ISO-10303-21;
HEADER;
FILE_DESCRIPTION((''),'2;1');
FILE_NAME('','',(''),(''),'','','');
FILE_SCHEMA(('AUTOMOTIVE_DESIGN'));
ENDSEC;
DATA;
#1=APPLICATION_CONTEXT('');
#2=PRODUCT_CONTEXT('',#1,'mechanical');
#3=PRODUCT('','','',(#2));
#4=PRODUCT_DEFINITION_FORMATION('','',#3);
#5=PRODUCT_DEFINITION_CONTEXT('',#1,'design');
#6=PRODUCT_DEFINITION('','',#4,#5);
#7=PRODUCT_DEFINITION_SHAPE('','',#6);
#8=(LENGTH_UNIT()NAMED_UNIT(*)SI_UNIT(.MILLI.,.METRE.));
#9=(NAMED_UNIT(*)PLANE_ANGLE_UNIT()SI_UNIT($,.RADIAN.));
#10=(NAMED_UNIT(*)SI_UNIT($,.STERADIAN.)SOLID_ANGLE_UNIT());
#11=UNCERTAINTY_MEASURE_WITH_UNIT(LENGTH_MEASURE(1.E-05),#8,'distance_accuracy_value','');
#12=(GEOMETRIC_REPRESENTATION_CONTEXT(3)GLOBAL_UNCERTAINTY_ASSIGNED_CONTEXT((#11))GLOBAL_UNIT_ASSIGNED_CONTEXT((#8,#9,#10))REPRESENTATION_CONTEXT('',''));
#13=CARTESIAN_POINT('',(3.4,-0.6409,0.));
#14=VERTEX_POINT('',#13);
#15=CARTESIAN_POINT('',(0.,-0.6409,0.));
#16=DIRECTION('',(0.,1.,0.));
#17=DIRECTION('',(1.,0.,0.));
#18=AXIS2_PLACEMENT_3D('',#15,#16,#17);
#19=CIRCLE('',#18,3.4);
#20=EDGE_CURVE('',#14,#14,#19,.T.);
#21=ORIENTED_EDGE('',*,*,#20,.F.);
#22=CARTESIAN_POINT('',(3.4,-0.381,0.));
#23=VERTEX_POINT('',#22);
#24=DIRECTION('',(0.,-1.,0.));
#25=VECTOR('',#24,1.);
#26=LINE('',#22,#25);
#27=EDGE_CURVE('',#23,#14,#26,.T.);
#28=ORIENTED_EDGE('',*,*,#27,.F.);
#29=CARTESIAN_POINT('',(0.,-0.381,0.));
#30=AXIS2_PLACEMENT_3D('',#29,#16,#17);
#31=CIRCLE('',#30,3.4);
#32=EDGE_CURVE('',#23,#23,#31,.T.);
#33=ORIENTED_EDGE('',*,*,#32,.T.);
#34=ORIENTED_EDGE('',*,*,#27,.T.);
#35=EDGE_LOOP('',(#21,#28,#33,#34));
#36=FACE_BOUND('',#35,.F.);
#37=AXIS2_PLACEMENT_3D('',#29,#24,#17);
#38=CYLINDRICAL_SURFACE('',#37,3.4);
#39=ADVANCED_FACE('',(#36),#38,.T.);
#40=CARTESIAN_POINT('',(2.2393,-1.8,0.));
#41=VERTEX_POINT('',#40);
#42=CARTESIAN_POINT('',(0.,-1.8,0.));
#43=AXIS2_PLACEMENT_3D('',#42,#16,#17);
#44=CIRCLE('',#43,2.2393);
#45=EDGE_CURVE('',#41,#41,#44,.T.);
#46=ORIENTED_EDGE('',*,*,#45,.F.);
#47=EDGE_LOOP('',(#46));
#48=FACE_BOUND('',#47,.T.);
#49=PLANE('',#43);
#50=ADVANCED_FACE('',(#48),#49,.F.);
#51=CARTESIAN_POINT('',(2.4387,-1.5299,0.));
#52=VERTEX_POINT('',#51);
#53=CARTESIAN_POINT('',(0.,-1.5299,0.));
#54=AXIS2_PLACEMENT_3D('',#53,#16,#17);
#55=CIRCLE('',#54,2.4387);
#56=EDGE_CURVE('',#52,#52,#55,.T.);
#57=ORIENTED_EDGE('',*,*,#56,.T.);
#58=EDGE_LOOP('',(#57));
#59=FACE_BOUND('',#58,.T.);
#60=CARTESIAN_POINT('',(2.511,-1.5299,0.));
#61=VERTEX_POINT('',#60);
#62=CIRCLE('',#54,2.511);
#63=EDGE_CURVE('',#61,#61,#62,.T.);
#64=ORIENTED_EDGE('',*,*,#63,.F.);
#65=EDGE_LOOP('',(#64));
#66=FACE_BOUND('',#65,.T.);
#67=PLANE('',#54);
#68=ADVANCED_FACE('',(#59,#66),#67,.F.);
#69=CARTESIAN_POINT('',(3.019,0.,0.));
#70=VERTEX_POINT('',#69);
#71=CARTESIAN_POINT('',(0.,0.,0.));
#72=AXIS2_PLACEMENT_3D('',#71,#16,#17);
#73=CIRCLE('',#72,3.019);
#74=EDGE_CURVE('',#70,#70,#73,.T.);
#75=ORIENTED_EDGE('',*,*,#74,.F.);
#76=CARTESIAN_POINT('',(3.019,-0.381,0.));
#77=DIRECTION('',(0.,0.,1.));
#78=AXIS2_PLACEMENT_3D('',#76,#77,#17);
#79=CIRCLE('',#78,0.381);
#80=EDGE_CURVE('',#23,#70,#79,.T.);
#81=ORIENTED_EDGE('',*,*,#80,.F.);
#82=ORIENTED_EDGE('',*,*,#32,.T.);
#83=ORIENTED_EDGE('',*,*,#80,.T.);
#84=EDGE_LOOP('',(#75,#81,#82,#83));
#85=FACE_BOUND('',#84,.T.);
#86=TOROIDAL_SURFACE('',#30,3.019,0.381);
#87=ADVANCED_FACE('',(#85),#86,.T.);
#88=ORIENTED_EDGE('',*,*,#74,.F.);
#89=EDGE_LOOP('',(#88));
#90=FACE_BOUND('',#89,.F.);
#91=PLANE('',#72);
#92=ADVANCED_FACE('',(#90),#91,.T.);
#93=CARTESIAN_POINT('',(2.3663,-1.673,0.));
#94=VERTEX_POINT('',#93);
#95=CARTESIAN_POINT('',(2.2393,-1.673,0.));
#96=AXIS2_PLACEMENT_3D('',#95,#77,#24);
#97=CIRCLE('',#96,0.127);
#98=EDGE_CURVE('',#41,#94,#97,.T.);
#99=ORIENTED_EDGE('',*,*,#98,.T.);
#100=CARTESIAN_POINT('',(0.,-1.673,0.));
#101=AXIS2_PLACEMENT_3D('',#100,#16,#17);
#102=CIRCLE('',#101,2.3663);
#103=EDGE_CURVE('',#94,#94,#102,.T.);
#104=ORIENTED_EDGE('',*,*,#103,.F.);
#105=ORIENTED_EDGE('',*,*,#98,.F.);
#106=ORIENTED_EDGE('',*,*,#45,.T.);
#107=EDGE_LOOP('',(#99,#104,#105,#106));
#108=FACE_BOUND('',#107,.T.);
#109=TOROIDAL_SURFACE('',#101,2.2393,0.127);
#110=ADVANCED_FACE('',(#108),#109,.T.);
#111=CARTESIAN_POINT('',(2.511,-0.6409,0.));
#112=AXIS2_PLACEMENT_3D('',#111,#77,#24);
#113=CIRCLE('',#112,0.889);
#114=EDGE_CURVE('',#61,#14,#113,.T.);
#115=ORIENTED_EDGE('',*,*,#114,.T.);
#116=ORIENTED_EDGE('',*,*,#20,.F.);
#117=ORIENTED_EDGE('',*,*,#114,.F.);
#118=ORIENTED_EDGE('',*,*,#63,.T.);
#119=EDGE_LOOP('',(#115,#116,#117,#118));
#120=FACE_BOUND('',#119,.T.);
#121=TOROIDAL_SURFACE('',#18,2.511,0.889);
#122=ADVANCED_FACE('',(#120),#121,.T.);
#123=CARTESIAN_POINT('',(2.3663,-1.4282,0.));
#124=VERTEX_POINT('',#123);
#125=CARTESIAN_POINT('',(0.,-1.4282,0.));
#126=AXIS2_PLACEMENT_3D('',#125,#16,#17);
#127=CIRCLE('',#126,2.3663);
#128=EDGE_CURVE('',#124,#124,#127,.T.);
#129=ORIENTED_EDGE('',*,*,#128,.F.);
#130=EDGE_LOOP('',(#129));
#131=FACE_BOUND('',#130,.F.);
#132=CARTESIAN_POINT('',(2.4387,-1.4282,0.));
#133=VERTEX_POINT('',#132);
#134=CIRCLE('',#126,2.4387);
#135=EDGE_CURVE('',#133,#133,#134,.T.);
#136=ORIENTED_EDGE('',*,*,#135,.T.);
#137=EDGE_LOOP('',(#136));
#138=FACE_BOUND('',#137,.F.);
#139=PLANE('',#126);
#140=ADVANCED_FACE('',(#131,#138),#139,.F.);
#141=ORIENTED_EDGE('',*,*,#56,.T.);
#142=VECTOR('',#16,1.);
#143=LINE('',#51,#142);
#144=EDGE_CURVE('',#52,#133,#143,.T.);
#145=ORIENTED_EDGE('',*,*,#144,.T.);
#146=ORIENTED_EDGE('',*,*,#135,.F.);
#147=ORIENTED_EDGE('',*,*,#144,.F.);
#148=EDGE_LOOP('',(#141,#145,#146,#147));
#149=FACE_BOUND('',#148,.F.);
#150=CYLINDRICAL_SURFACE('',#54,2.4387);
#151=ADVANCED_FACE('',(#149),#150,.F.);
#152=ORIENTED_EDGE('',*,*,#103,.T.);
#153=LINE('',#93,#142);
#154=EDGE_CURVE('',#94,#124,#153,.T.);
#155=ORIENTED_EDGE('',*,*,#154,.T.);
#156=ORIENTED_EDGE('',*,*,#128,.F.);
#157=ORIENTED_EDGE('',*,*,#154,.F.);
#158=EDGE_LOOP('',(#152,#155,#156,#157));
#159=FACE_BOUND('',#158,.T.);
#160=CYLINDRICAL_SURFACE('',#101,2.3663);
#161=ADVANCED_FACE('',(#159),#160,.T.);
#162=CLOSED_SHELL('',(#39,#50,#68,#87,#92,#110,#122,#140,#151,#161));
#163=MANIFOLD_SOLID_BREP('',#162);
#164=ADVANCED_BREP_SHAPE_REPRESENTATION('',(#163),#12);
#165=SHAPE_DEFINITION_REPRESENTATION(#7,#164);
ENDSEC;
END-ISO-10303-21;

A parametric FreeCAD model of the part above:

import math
import FreeCAD as App
import Part
import Sketcher

V = App.Vector
Q = App.Units.Quantity

doc = App.newDocument("Part")
body = doc.addObject("PartDesign::Body", "Body")

sketch1 = body.newObject("Sketcher::SketchObject", "Sketch")
sketch1.AttachmentSupport = (doc.getObject("XY_Plane"), [""])
sketch1.MapMode = "FlatFace"
sketch1.addGeometry([
    Part.LineSegment(V(3.019, 0, 0), V(0, 0, 0)),
    Part.LineSegment(V(0, 0, 0), V(0, -1.8, 0)),
    Part.LineSegment(V(0, -1.8, 0), V(2.2393, -1.8, 0)),
    Part.ArcOfCircle(Part.Circle(V(2.2393, -1.673, 0), V(0, 0, 1), 0.127), math.radians(-90), math.radians(0)),
    Part.LineSegment(V(2.3663, -1.673, 0), V(2.3663, -1.4282, 0)),
    Part.LineSegment(V(2.3663, -1.4282, 0), V(2.4387, -1.4282, 0)),
    Part.LineSegment(V(2.4387, -1.4282, 0), V(2.4387, -1.5299, 0)),
    Part.LineSegment(V(2.4387, -1.5299, 0), V(2.511, -1.5299, 0)),
    Part.ArcOfCircle(Part.Circle(V(2.511, -0.6409, 0), V(0, 0, 1), 0.889), math.radians(-90), math.radians(0)),
    Part.LineSegment(V(3.4, -0.6409, 0), V(3.4, -0.381, 0)),
    Part.ArcOfCircle(Part.Circle(V(3.019, -0.381, 0), V(0, 0, 1), 0.381), math.radians(0), math.radians(90)),
], False)
sketch1.addConstraint([
    Sketcher.Constraint("Coincident", 0, 2, 1, 1),
    Sketcher.Constraint("Coincident", 1, 2, 2, 1),
    Sketcher.Constraint("Tangent", 2, 2, 3, 1),
    Sketcher.Constraint("Tangent", 3, 2, 4, 1),
    Sketcher.Constraint("Coincident", 4, 2, 5, 1),
    Sketcher.Constraint("Coincident", 5, 2, 6, 1),
    Sketcher.Constraint("Coincident", 6, 2, 7, 1),
    Sketcher.Constraint("Tangent", 7, 2, 8, 1),
    Sketcher.Constraint("Tangent", 8, 2, 9, 1),
    Sketcher.Constraint("Tangent", 9, 2, 10, 1),
    Sketcher.Constraint("Tangent", 10, 2, 0, 1),
    Sketcher.Constraint("Horizontal", 0),
    Sketcher.Constraint("Vertical", 1),
    Sketcher.Constraint("Horizontal", 2),
    Sketcher.Constraint("Vertical", 4),
    Sketcher.Constraint("Horizontal", 5),
    Sketcher.Constraint("Vertical", 6),
    Sketcher.Constraint("Horizontal", 7),
    Sketcher.Constraint("Vertical", 9),
    Sketcher.Constraint("Coincident", 0, 2, -1, 1),
    Sketcher.Constraint("Equal", 5, 7),
    Sketcher.Constraint("Radius", 3, Q("0.005 in")),
    Sketcher.Constraint("Radius", 8, Q("0.035 in")),
    Sketcher.Constraint("Radius", 10, Q("0.015 in")),
    Sketcher.Constraint("DistanceY", 6, 2, 6, 1, Q("0.004 in")),
    Sketcher.Constraint("DistanceX", -1, 1, 5, 2, Q("0.096 in")),
    Sketcher.Constraint("DistanceX", 0, 2, 0, 1, Q("3.019 mm")),
    Sketcher.Constraint("DistanceY", 1, 2, 1, 1, Q("1.8 mm")),
    Sketcher.Constraint("DistanceY", 4, 1, 4, 2, Q("0.2448 mm")),
])
revolution = body.newObject("PartDesign::Revolution", "Revolution")
revolution.Profile = sketch1
revolution.ReferenceAxis = (sketch1, ["V_Axis"])
revolution.Angle = 360

doc.recompute()
